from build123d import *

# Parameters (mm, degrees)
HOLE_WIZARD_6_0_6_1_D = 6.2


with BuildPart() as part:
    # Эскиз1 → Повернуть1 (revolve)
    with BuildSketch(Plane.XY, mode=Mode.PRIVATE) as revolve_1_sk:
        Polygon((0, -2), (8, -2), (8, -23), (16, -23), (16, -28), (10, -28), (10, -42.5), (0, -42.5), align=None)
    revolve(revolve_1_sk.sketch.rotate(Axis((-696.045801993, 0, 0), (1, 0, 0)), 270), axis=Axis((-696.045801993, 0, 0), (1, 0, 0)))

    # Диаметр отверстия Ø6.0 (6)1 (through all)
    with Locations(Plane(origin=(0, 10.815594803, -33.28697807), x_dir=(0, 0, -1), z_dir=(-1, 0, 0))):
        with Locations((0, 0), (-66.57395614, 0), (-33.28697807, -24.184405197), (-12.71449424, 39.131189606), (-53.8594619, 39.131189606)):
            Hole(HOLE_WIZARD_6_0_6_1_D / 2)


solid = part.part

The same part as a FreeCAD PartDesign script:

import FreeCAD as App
import Part
import Sketcher


def add_polygon(sketch, points):
    """Adds a closed chain of lines whose ends are joined by coincident constraints."""
    first, n = sketch.GeometryCount, len(points)
    for a, b in zip(points, points[1:] + points[:1]):
        sketch.addGeometry(Part.LineSegment(App.Vector(*a, 0), App.Vector(*b, 0)), False)
    for i in range(n):
        sketch.addConstraint(Sketcher.Constraint("Coincident", first + i, 2, first + (i + 1) % n, 1))

doc = App.newDocument("Part")
body = doc.addObject("PartDesign::Body", "Body")

# Sketch on XY plane
sketch1 = body.newObject("Sketcher::SketchObject", "Sketch")
sketch1.AttachmentSupport = (doc.getObject("XY_Plane"), [""])
sketch1.MapMode = "FlatFace"
add_polygon(sketch1, [(8, -2), (0, -2), (0, -42), (10, -42), (10, -28), (16, -28), (16, -23), (8, -23)])  # lines 0-7
sketch1.addConstraint([
    Sketcher.Constraint("Horizontal", 0),
    Sketcher.Constraint("Vertical", 1),
    Sketcher.Constraint("Horizontal", 2),
    Sketcher.Constraint("Vertical", 3),
    Sketcher.Constraint("Horizontal", 4),
    Sketcher.Constraint("Vertical", 5),
    Sketcher.Constraint("Horizontal", 6),
    Sketcher.Constraint("Vertical", 7),
    Sketcher.Constraint("PointOnObject", 0, 2, -2),
    Sketcher.Constraint("Equal", 0, 6),
    Sketcher.Constraint("DistanceX", 0, 2, 0, 1, 8.0),
    Sketcher.Constraint("DistanceX", 2, 1, 2, 2, 10.0),
    Sketcher.Constraint("DistanceY", 5, 1, 5, 2, 5.0),
    Sketcher.Constraint("DistanceY", 7, 1, 7, 2, 21.0),
    Sketcher.Constraint("DistanceY", 1, 2, 1, 1, 40.5),
    Sketcher.Constraint("DistanceY", 0, 2, -1, 1, 2.0),
])
revolution = body.newObject("PartDesign::Revolution", "Revolution")
revolution.Profile = sketch1
revolution.ReferenceAxis = (sketch1, ["H_Axis"])
revolution.Angle = 360

# Sketch on YZ plane
sketch2 = body.newObject("Sketcher::SketchObject", "Sketch001")
sketch2.AttachmentSupport = (doc.getObject("YZ_Plane"), [""])
sketch2.MapMode = "FlatFace"
sketch2.addGeometry([
    Part.Circle(App.Vector(10.8, -33.3, 0), App.Vector(0, 0, 1), 3.1),  # 0
    Part.Circle(App.Vector(10.8, 33.3, 0), App.Vector(0, 0, 1), 3.1),  # 1
    Part.Circle(App.Vector(35, 0, 0), App.Vector(0, 0, 1), 3.1),  # 2
    Part.Circle(App.Vector(-28.3, -20.6, 0), App.Vector(0, 0, 1), 3.1),  # 3
    Part.Circle(App.Vector(-28.3, 20.6, 0), App.Vector(0, 0, 1), 3.1),  # 4
], False)
sketch2.addConstraint([
    Sketcher.Constraint("Equal", 0, 1),
    Sketcher.Constraint("Equal", 1, 2),
    Sketcher.Constraint("Equal", 2, 3),
    Sketcher.Constraint("Equal", 3, 4),
    Sketcher.Constraint("Symmetric", 0, 3, 1, 3, -1),
    Sketcher.Constraint("Symmetric", 3, 3, 4, 3, -1),
    Sketcher.Constraint("PointOnObject", 2, 3, -1),
    Sketcher.Constraint("Diameter", 0, 6.2),
    Sketcher.Constraint("DistanceX", -1, 1, 2, 3, 35.0),
    Sketcher.Constraint("DistanceY", 0, 3, -1, 1, 33.286978),
    Sketcher.Constraint("DistanceX", 3, 3, 0, 3, 39.13119),
    Sketcher.Constraint("DistanceY", 3, 3, 1, 3, 53.859462),
    Sketcher.Constraint("DistanceX", -1, 1, 0, 3, 10.815595),
])
doc.recompute()
hole = body.newObject("PartDesign::Hole", "Hole")
hole.Profile = sketch2
hole.ThreadType = "None"
hole.Diameter = 6.2
hole.DepthType = "ThroughAll"
hole.Reversed = True

doc.recompute()
